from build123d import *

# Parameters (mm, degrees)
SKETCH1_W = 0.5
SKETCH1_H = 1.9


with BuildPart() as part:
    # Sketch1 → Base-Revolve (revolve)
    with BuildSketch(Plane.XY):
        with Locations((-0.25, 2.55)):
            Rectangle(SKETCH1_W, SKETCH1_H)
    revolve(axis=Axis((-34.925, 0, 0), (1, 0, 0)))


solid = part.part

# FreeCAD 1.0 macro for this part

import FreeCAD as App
import Part
import Sketcher

V = App.Vector
Q = App.Units.Quantity

doc = App.newDocument("Part")
body = doc.addObject("PartDesign::Body", "Body")

sketch1 = doc.addObject("Sketcher::SketchObject", "Sketch")
body.addObject(sketch1)
sketch1.AttachmentSupport = (doc.XY_Plane, [""])
sketch1.MapMode = "FlatFace"
sketch1.addGeometry([
    Part.LineSegment(V(-0.5, 3.5, 0), V(-0.5, 1.6, 0)),
    Part.LineSegment(V(-0.5, 1.6, 0), V(0, 1.6, 0)),
    Part.LineSegment(V(0, 1.6, 0), V(0, 3.5, 0)),
    Part.LineSegment(V(0, 3.5, 0), V(-0.5, 3.5, 0)),
], False)
sketch1.addConstraint([
    Sketcher.Constraint("Coincident", 0, 2, 1, 1),
    Sketcher.Constraint("Coincident", 1, 2, 2, 1),
    Sketcher.Constraint("Coincident", 2, 2, 3, 1),
    Sketcher.Constraint("Coincident", 3, 2, 0, 1),
    Sketcher.Constraint("Vertical", 0),
    Sketcher.Constraint("Horizontal", 1),
    Sketcher.Constraint("Vertical", 2),
    Sketcher.Constraint("Horizontal", 3),
    Sketcher.Constraint("PointOnObject", 1, 2, -2),
    Sketcher.Constraint("DistanceX", 1, 1, 1, 2, Q("0.5 mm")),
    Sketcher.Constraint("DistanceY", 0, 2, 0, 1, Q("1.9 mm")),
    Sketcher.Constraint("DistanceY", -1, 1, 0, 2, Q("1.6 mm")),
])
revolution = doc.addObject("PartDesign::Revolution", "Revolution")
body.addObject(revolution)
revolution.Profile = sketch1
revolution.ReferenceAxis = (sketch1, ["H_Axis"])
revolution.Angle = 360

doc.recompute()
